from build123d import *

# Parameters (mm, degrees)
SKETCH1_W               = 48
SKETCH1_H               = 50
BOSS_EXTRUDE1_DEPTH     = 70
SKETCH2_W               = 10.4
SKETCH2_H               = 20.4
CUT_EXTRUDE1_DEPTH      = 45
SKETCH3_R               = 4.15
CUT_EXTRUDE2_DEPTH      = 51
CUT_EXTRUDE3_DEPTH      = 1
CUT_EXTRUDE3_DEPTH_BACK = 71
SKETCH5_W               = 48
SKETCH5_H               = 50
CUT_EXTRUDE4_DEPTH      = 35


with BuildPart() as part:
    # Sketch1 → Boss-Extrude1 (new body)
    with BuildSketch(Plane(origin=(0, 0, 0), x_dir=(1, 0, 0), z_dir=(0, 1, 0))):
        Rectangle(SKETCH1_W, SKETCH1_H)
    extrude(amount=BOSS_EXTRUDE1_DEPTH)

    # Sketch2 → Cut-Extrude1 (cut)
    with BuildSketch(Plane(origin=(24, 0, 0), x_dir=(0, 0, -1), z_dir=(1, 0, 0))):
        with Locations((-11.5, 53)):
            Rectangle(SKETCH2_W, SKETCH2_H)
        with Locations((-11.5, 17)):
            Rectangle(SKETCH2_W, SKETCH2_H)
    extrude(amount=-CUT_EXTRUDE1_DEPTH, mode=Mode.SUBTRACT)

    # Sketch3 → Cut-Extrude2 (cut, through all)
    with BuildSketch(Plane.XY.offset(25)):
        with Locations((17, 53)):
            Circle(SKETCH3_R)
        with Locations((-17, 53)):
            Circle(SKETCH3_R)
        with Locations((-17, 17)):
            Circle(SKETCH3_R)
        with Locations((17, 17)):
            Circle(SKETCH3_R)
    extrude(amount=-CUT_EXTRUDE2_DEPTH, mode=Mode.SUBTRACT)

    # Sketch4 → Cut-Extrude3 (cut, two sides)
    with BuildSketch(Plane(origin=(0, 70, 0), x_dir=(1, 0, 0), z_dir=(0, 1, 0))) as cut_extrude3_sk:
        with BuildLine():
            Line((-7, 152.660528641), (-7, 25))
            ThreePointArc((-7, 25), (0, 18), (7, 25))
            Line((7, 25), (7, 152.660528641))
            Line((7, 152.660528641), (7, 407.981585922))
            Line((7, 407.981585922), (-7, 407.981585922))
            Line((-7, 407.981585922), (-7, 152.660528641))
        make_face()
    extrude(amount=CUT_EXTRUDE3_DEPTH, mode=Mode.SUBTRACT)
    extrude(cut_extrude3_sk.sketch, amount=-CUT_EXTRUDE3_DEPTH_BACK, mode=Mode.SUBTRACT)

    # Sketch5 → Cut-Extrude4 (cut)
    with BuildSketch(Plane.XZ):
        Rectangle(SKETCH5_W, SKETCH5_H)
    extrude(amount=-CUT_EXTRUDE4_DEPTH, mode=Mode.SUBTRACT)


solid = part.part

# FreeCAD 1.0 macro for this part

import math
import FreeCAD as App
import Part
import Sketcher

V = App.Vector
Q = App.Units.Quantity


def add_polygon(sketch, points):
    """Adds a closed chain of lines whose ends are joined by coincident constraints."""
    first, n = sketch.GeometryCount, len(points)
    for a, b in zip(points, points[1:] + points[:1]):
        sketch.addGeometry(Part.LineSegment(App.Vector(*a, 0), App.Vector(*b, 0)), False)
    for i in range(n):
        sketch.addConstraint(Sketcher.Constraint("Coincident", first + i, 2, first + (i + 1) % n, 1))

doc = App.newDocument("Part")
body = doc.addObject("PartDesign::Body", "Body")

sketch1 = body.newObject("Sketcher::SketchObject", "Sketch")
sketch1.AttachmentSupport = (doc.getObject("XZ_Plane"), [""])
sketch1.MapMode = "FlatFace"
add_polygon(sketch1, [(-24, -25), (-24, 25), (24, 25), (24, -25)])
sketch1.addConstraint([
    Sketcher.Constraint("Vertical", 0),
    Sketcher.Constraint("Horizontal", 1),
    Sketcher.Constraint("Vertical", 2),
    Sketcher.Constraint("Horizontal", 3),
    Sketcher.Constraint("Symmetric", 0, 2, 2, 2, -1, 1),
    Sketcher.Constraint("DistanceX", 1, 1, 1, 2, Q("48 mm")),
    Sketcher.Constraint("DistanceY", 0, 1, 0, 2, Q("50 mm")),
])
pad1 = body.newObject("PartDesign::Pad", "Pad")
pad1.Profile = sketch1
pad1.Length = 70
pad1.Reversed = True

sketch2 = body.newObject("Sketcher::SketchObject", "Sketch001")
sketch2.AttachmentSupport = (doc.getObject("YZ_Plane"), [""])
sketch2.MapMode = "FlatFace"
sketch2.AttachmentOffset = App.Placement(V(0, 0, 24), App.Rotation())
add_polygon(sketch2, [(63.2, 16.7), (42.8, 16.7), (42.8, 6.3), (63.2, 6.3)])
add_polygon(sketch2, [(27.2, 16.7), (6.8, 16.7), (6.8, 6.3), (27.2, 6.3)])
sketch2.addConstraint([
    Sketcher.Constraint("Horizontal", 0),
    Sketcher.Constraint("Vertical", 1),
    Sketcher.Constraint("Horizontal", 2),
    Sketcher.Constraint("Vertical", 3),
    Sketcher.Constraint("Horizontal", 4),
    Sketcher.Constraint("Vertical", 5),
    Sketcher.Constraint("Horizontal", 6),
    Sketcher.Constraint("Vertical", 7),
    Sketcher.Constraint("Horizontal", 3, 2, 4, 2),
    Sketcher.Constraint("Horizontal", 2, 2, 5, 2),
    Sketcher.Constraint("Equal", 2, 4),
    Sketcher.Constraint("DistanceX", 0, 2, 0, 1, Q("20.4 mm")),
    Sketcher.Constraint("DistanceY", 1, 2, 1, 1, Q("10.4 mm")),
    Sketcher.Constraint("DistanceX", 4, 2, 0, 2, Q("36 mm")),
    Sketcher.Constraint("DistanceX", -1, 1, 0, 2, Q("42.8 mm")),
    Sketcher.Constraint("DistanceY", -1, 1, 0, 2, Q("16.7 mm")),
])
pocket1 = body.newObject("PartDesign::Pocket", "Pocket")
pocket1.Profile = sketch2
pocket1.Length = 45

sketch3 = body.newObject("Sketcher::SketchObject", "Sketch002")
sketch3.AttachmentSupport = (doc.getObject("XY_Plane"), [""])
sketch3.MapMode = "FlatFace"
sketch3.AttachmentOffset = App.Placement(V(0, 0, 25), App.Rotation())
sketch3.addGeometry([
    Part.Circle(V(17, 53, 0), V(0, 0, 1), 4.15),
    Part.Circle(V(-17, 53, 0), V(0, 0, 1), 4.15),
    Part.Circle(V(-17, 17, 0), V(0, 0, 1), 4.15),
    Part.Circle(V(17, 17, 0), V(0, 0, 1), 4.15),
], False)
sketch3.addConstraint([
    Sketcher.Constraint("Equal", 0, 1),
    Sketcher.Constraint("Equal", 1, 2),
    Sketcher.Constraint("Equal", 2, 3),
    Sketcher.Constraint("Symmetric", 0, 3, 1, 3, -2),
    Sketcher.Constraint("Symmetric", 2, 3, 3, 3, -2),
    Sketcher.Constraint("Vertical", 1, 3, 2, 3),
    Sketcher.Constraint("Diameter", 0, Q("8.3 mm")),
    Sketcher.Constraint("DistanceX", -1, 1, 0, 3, Q("17 mm")),
    Sketcher.Constraint("DistanceY", -1, 1, 0, 3, Q("53 mm")),
    Sketcher.Constraint("DistanceY", -1, 1, 2, 3, Q("17 mm")),
])
pocket2 = body.newObject("PartDesign::Pocket", "Pocket001")
pocket2.Profile = sketch3
pocket2.Type = "ThroughAll"

sketch4 = body.newObject("Sketcher::SketchObject", "Sketch003")
sketch4.AttachmentSupport = (doc.getObject("XZ_Plane"), [""])
sketch4.MapMode = "FlatFace"
sketch4.AttachmentOffset = App.Placement(V(0, 0, -70), App.Rotation())
sketch4.addGeometry([
    Part.ArcOfCircle(Part.Circle(V(0, -25, 0), V(0, 0, 1), 7), math.radians(0), math.radians(180)),
    Part.LineSegment(V(7, -25, 0), V(7, -407.981586, 0)),
    Part.LineSegment(V(7, -407.981586, 0), V(-7, -407.981586, 0)),
    Part.LineSegment(V(-7, -407.981586, 0), V(-7, -25, 0)),
], False)
sketch4.addConstraint([
    Sketcher.Constraint("Tangent", 0, 1, 1, 1),
    Sketcher.Constraint("Coincident", 1, 2, 2, 1),
    Sketcher.Constraint("Coincident", 2, 2, 3, 1),
    Sketcher.Constraint("Tangent", 3, 2, 0, 2),
    Sketcher.Constraint("Vertical", 1),
    Sketcher.Constraint("Horizontal", 2),
    Sketcher.Constraint("Vertical", 3),
    Sketcher.Constraint("PointOnObject", 0, 3, -2),
    Sketcher.Constraint("Radius", 0, Q("7 mm")),
    Sketcher.Constraint("DistanceY", 0, 3, -1, 1, Q("25 mm")),
    Sketcher.Constraint("DistanceY", 1, 2, 1, 1, Q("382.981586 mm")),
])
pocket3 = body.newObject("PartDesign::Pocket", "Pocket002")
pocket3.Profile = sketch4
pocket3.Type = "ThroughAll"
pocket3.Midplane = True

sketch5 = body.newObject("Sketcher::SketchObject", "Sketch004")
sketch5.AttachmentSupport = (doc.getObject("XZ_Plane"), [""])
sketch5.MapMode = "FlatFace"
add_polygon(sketch5, [(-24, 25), (-24, -25), (24, -25), (24, 25)])
sketch5.addConstraint([
    Sketcher.Constraint("Vertical", 0),
    Sketcher.Constraint("Horizontal", 1),
    Sketcher.Constraint("Vertical", 2),
    Sketcher.Constraint("Horizontal", 3),
    Sketcher.Constraint("Symmetric", 0, 2, 2, 2, -1, 1),
    Sketcher.Constraint("DistanceX", 1, 1, 1, 2, Q("48 mm")),
    Sketcher.Constraint("DistanceY", 0, 2, 0, 1, Q("50 mm")),
])
pocket4 = body.newObject("PartDesign::Pocket", "Pocket003")
pocket4.Profile = sketch5
pocket4.Length = 35

doc.recompute()
